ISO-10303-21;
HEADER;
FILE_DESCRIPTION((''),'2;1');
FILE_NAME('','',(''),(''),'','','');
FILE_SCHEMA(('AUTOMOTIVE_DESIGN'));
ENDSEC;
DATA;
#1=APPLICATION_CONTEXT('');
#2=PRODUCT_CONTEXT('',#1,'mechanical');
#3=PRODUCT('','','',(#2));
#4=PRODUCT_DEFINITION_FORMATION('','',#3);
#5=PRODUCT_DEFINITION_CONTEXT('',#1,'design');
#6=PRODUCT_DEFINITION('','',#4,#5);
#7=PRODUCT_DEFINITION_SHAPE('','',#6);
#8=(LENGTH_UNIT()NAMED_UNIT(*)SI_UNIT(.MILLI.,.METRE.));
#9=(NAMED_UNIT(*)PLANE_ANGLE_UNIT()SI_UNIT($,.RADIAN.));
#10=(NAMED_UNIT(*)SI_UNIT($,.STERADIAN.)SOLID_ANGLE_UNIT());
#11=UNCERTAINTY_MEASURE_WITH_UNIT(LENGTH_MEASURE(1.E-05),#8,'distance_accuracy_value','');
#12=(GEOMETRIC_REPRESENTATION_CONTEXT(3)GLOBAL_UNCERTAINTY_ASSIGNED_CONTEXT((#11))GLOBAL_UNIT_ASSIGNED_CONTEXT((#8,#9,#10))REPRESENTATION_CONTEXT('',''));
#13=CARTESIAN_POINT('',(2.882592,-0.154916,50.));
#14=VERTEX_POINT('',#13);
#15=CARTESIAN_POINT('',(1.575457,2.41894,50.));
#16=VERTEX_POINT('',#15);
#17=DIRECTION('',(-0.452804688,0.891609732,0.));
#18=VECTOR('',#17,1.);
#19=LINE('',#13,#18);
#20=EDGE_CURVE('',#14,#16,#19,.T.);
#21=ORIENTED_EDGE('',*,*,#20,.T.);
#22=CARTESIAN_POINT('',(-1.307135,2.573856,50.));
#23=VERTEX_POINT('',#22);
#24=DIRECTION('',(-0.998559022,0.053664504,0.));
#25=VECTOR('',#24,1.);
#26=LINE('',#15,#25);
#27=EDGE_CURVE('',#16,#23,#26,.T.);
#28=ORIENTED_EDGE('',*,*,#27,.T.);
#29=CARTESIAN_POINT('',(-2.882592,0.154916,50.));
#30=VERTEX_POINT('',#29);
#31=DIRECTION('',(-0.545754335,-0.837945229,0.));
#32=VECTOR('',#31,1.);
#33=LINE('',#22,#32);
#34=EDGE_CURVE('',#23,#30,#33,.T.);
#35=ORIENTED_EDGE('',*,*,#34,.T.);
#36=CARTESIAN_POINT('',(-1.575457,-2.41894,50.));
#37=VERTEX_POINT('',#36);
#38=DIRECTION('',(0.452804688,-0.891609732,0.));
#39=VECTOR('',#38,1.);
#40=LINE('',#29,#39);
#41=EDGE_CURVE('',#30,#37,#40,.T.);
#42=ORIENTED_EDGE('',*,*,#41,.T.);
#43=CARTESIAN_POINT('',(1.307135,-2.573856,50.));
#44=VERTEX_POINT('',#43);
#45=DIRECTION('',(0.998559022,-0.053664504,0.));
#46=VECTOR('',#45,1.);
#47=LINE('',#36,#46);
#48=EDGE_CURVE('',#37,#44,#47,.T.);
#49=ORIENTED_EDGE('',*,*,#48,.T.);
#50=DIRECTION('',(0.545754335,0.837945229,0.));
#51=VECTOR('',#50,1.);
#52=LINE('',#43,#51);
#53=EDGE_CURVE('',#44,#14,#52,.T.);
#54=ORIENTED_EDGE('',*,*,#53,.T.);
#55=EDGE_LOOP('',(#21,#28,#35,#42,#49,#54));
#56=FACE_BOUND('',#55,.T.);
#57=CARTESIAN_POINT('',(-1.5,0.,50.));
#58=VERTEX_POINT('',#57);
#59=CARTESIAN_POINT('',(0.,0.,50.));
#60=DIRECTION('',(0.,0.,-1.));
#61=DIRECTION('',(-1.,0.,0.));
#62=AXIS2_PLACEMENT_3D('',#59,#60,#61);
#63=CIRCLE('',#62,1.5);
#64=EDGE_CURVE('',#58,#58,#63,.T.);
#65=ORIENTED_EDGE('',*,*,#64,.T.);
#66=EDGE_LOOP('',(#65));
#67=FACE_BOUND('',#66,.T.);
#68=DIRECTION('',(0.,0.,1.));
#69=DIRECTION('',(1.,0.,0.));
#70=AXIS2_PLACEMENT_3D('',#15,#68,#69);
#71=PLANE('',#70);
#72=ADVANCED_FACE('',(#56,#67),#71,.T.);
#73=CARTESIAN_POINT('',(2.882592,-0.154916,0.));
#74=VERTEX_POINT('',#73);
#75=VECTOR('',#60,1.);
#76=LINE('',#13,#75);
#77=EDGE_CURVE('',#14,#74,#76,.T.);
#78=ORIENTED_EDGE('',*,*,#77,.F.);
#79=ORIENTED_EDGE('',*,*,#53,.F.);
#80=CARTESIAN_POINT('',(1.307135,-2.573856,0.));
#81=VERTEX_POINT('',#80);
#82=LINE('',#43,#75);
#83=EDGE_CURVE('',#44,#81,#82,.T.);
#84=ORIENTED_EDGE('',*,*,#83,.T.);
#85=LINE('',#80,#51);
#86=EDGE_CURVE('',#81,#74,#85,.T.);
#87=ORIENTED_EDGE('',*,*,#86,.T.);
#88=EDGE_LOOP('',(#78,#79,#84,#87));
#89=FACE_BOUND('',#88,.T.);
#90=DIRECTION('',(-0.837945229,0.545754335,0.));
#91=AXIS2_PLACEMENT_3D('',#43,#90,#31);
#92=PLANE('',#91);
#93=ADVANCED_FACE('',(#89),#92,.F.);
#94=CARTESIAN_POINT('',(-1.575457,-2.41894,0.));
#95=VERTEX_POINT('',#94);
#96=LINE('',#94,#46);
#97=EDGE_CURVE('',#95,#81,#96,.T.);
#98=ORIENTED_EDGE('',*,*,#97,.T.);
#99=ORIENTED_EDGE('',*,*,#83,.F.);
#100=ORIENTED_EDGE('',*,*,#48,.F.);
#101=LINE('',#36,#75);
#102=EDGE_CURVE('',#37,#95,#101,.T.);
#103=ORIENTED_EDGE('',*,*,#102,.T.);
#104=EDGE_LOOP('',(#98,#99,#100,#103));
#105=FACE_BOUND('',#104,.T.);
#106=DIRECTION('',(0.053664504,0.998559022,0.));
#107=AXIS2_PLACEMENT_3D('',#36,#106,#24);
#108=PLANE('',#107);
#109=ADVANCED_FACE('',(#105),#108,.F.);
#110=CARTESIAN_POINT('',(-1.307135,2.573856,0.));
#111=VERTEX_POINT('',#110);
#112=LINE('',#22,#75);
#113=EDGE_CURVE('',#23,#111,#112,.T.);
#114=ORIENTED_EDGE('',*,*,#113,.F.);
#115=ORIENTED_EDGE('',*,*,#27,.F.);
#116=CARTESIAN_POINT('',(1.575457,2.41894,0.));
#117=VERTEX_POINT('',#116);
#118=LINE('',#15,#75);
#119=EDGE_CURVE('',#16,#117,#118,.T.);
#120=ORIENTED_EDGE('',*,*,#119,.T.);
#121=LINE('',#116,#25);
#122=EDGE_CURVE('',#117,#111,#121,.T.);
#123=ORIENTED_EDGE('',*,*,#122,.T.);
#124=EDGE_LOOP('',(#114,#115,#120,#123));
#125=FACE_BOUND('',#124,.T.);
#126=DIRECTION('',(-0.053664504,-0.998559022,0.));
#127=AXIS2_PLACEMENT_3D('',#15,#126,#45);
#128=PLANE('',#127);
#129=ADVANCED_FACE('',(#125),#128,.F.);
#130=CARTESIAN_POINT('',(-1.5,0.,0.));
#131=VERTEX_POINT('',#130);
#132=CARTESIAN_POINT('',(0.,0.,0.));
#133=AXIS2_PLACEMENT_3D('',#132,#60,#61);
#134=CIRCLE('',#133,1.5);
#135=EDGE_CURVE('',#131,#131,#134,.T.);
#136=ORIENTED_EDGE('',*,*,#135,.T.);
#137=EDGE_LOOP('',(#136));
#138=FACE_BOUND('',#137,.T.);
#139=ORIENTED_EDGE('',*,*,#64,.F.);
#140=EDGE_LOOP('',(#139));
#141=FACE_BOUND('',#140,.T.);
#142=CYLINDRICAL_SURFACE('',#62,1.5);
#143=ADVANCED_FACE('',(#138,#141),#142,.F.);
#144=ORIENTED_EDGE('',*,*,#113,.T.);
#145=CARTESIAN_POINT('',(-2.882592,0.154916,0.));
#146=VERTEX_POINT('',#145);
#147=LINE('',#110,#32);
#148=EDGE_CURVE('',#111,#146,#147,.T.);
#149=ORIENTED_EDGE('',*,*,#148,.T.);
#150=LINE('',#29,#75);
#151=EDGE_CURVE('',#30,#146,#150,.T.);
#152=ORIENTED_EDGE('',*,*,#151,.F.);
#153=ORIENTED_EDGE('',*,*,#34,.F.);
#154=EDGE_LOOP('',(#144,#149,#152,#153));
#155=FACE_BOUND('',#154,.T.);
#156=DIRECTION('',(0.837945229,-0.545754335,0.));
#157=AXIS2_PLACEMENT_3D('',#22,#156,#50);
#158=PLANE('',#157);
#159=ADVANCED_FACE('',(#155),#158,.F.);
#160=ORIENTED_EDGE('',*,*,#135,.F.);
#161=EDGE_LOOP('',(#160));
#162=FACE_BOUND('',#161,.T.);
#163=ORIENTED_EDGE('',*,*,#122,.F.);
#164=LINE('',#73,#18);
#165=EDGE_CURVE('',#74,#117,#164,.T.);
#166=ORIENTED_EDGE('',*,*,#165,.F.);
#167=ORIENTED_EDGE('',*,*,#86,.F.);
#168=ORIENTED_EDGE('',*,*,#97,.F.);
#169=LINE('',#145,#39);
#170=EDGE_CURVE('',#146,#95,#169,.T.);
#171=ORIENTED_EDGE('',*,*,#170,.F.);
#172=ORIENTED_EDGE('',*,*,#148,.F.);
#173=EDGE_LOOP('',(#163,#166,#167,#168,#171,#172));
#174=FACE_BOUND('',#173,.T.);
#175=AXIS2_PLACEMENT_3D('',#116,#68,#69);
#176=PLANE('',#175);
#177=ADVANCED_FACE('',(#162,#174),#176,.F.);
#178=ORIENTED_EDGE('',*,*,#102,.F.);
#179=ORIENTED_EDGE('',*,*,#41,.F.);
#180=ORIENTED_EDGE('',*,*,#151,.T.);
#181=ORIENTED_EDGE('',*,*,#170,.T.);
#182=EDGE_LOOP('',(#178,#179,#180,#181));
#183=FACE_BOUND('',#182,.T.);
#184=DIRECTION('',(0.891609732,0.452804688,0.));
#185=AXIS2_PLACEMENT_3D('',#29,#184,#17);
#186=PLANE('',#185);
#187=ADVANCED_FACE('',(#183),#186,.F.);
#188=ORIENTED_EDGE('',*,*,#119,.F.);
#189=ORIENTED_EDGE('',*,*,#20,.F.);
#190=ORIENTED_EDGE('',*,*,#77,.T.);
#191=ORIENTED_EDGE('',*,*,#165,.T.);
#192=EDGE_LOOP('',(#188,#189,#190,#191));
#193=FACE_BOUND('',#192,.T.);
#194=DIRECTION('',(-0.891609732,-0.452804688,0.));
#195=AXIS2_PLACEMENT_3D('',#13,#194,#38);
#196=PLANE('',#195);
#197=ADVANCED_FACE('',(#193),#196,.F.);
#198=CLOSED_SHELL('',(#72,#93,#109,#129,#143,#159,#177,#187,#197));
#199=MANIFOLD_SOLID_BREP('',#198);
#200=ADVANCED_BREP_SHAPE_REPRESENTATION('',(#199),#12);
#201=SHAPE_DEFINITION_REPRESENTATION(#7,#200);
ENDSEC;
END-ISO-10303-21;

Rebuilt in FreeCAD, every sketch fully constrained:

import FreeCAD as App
import Part
import Sketcher
from FreeCAD import Vector


def add_polygon(sketch, points):
    """Adds a closed chain of lines whose ends are joined by coincident constraints."""
    first, n = sketch.GeometryCount, len(points)
    for a, b in zip(points, points[1:] + points[:1]):
        sketch.addGeometry(Part.LineSegment(App.Vector(*a, 0), App.Vector(*b, 0)), False)
    for i in range(n):
        sketch.addConstraint(Sketcher.Constraint("Coincident", first + i, 2, first + (i + 1) % n, 1))

doc = App.newDocument("Part")
body = doc.addObject("PartDesign::Body", "Body")

# Sketch on XY plane
sketch1 = doc.addObject("Sketcher::SketchObject", "Sketch")
body.addObject(sketch1)
sketch1.AttachmentSupport = (doc.XY_Plane, [""])
sketch1.MapMode = "FlatFace"
add_polygon(sketch1, [(1.6, 2.4), (-1.3, 2.6), (-2.9, 0.2), (-1.6, -2.4), (1.3, -2.6), (2.9, -0.2)])  # lines 0-5
sketch1.addConstraint(Sketcher.Constraint("Symmetric", 0, 2, 3, 2, -1, 1))
sketch1.addConstraint(Sketcher.Constraint("Symmetric", 1, 2, 4, 2, -1, 1))
sketch1.addConstraint(Sketcher.Constraint("Symmetric", 2, 2, 5, 2, -1, 1))
sketch1.addConstraint(Sketcher.Constraint("Equal", 0, 1))
sketch1.addConstraint(Sketcher.Constraint("Equal", 1, 2))
sketch1.addConstraint(Sketcher.Constraint("Distance", 0, 2.886751))
sketch1.addConstraint(Sketcher.Constraint("DistanceX", 1, 2, -1, 1, 2.882592))
sketch1.addConstraint(Sketcher.Constraint("DistanceY", 2, 2, -1, 1, 2.41894))
sketch1.addConstraint(Sketcher.Constraint("DistanceY", 1, 2, 0, 2, 2.41894))
pad1 = doc.addObject("PartDesign::Pad", "Pad")
body.addObject(pad1)
pad1.Profile = sketch1
pad1.Length = 50

# Sketch on XY plane
sketch2 = doc.addObject("Sketcher::SketchObject", "Sketch001")
body.addObject(sketch2)
sketch2.AttachmentSupport = (doc.XY_Plane, [""])
sketch2.MapMode = "FlatFace"
sketch2.addGeometry(Part.Circle(Vector(0, 0, 0), Vector(0, 0, 1), 1.5), False)
sketch2.addConstraint(Sketcher.Constraint("Coincident", 0, 3, -1, 1))
sketch2.addConstraint(Sketcher.Constraint("Diameter", 0, 3.0))
pocket1 = doc.addObject("PartDesign::Pocket", "Pocket")
body.addObject(pocket1)
pocket1.Profile = sketch2
pocket1.Type = "ThroughAll"
pocket1.Reversed = True

doc.recompute()
